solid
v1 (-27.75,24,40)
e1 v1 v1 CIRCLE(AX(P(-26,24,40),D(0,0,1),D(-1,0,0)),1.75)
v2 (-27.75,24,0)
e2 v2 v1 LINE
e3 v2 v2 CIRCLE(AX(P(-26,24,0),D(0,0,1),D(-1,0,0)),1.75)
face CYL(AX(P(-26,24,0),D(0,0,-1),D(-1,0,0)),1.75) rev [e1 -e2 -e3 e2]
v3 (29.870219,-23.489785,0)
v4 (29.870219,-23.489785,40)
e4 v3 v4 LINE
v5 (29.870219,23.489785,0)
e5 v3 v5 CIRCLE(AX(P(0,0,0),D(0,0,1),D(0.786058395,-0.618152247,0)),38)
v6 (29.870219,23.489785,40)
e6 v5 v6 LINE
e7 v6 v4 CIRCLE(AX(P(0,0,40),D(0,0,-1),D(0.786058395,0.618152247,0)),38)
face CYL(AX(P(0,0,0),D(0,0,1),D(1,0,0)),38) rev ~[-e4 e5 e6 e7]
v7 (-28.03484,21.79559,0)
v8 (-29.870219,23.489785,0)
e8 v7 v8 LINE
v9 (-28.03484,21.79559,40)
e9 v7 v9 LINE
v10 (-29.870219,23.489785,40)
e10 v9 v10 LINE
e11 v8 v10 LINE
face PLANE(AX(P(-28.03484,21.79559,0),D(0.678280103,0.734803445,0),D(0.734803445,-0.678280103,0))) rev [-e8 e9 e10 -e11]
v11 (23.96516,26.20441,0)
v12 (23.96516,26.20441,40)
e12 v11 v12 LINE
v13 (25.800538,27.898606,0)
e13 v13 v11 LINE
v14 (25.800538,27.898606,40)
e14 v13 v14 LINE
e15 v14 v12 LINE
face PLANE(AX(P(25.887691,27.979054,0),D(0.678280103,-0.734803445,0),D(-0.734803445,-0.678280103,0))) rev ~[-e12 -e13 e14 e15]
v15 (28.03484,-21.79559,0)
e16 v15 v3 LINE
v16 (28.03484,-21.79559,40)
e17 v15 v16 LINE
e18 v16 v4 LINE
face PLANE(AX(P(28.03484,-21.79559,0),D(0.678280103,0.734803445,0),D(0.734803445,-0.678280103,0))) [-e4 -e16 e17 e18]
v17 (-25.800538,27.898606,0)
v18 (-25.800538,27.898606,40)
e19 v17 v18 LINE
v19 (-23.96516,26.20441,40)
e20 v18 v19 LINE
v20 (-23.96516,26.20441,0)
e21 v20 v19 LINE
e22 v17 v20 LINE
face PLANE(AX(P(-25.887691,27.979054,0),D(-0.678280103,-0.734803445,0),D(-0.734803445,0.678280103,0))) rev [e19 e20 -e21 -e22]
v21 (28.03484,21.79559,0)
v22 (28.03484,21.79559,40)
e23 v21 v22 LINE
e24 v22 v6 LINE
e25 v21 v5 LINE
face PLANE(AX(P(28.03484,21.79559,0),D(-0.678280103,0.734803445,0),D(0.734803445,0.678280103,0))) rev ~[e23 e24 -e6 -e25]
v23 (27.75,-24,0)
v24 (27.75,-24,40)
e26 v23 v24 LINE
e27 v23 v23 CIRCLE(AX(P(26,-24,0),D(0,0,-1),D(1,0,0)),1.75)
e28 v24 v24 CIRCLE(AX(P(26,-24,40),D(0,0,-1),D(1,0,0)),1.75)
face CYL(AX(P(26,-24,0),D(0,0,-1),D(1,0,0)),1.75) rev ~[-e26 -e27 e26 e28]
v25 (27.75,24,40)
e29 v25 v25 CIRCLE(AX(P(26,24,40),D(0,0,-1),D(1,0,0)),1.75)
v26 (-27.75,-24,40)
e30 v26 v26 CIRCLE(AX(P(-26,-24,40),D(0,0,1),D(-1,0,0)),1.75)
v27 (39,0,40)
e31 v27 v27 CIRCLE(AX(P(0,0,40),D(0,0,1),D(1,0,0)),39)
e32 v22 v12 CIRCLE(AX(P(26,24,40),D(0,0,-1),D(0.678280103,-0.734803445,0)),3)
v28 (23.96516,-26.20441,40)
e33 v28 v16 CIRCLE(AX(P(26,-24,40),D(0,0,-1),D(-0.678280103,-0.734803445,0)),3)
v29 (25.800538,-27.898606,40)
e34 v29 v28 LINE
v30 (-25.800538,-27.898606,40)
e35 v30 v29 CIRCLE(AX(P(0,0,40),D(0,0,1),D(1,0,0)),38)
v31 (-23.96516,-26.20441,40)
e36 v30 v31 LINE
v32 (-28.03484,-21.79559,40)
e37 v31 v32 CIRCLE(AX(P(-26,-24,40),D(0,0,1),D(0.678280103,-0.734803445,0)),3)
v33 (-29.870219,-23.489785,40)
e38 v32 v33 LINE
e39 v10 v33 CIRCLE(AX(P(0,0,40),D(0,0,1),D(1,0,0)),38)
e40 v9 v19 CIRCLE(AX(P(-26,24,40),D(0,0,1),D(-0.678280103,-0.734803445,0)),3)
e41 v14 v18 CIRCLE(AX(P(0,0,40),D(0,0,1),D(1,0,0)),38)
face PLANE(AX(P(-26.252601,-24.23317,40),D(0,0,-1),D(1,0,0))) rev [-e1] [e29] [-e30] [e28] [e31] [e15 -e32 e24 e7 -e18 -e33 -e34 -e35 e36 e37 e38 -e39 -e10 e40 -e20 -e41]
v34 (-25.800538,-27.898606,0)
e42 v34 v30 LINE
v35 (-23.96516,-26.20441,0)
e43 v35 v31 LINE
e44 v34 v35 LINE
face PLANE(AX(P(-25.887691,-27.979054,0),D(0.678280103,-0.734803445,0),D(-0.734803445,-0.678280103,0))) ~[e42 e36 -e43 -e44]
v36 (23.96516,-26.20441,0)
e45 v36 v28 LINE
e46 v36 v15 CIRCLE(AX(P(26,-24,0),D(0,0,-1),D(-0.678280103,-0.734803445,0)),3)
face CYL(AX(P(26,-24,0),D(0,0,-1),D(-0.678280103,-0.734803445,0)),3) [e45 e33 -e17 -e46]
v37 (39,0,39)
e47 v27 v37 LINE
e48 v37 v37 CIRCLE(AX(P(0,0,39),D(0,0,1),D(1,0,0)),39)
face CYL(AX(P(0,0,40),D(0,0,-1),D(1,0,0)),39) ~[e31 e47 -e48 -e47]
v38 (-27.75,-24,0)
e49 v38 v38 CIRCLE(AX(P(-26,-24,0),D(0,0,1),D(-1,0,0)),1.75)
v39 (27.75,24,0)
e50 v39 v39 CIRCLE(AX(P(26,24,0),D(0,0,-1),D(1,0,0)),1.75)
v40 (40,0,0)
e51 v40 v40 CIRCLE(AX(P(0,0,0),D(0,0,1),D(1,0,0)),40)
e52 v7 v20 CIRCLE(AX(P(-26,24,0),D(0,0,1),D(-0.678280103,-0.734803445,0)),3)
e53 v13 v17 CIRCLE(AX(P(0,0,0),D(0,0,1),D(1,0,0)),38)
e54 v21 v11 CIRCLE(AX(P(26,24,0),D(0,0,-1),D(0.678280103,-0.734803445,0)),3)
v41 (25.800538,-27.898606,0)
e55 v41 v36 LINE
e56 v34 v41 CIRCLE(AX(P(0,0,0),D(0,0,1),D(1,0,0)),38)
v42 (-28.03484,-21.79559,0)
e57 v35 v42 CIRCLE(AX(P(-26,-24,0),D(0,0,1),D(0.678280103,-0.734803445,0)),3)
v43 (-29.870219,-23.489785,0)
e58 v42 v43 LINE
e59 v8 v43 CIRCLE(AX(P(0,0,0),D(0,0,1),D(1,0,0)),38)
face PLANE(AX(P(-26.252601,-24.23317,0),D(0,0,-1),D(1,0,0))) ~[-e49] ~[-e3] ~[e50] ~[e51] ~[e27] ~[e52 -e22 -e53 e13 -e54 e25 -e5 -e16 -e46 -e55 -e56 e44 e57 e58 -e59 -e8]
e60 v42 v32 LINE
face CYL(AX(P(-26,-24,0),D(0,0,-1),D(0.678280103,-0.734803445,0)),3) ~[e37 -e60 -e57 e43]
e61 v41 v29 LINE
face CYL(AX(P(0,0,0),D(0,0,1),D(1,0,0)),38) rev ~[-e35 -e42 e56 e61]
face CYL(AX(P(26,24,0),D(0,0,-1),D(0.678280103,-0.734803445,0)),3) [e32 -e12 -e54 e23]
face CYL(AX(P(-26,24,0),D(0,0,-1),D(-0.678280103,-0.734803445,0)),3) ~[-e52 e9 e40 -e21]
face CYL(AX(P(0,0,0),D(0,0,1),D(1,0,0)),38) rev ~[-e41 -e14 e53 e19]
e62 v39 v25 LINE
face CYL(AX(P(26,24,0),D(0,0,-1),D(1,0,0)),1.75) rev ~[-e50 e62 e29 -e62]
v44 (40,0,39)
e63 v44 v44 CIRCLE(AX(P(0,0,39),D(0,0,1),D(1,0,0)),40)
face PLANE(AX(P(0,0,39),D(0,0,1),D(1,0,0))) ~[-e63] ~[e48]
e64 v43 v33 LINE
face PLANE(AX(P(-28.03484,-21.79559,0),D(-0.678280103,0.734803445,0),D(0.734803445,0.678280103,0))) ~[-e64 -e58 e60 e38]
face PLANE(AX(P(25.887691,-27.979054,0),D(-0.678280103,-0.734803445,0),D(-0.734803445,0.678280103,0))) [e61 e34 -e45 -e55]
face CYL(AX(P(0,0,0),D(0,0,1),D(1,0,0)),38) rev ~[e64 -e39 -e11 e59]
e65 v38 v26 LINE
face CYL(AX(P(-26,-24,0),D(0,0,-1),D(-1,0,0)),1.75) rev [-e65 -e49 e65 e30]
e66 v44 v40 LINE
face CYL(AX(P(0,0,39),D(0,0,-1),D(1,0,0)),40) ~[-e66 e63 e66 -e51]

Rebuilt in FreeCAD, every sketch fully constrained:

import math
import FreeCAD as App
import Part
import Sketcher
Q = App.Units.Quantity

doc = App.newDocument("Part")
body = doc.addObject("PartDesign::Body", "Body")

sketch1 = doc.addObject("Sketcher::SketchObject", "Sketch")
body.addObject(sketch1)
sketch1.AttachmentSupport = (doc.XZ_Plane, [""])
sketch1.MapMode = "FlatFace"
sketch1.addGeometry([
    Part.LineSegment(App.Vector(38, 40, 0), App.Vector(38, 0, 0)),
    Part.LineSegment(App.Vector(38, 0, 0), App.Vector(40, 0, 0)),
    Part.LineSegment(App.Vector(40, 0, 0), App.Vector(40, 39, 0)),
    Part.LineSegment(App.Vector(40, 39, 0), App.Vector(39, 39, 0)),
    Part.LineSegment(App.Vector(39, 39, 0), App.Vector(39, 40, 0)),
    Part.LineSegment(App.Vector(39, 40, 0), App.Vector(38, 40, 0)),
], False)
sketch1.addConstraint([
    Sketcher.Constraint("Coincident", 0, 2, 1, 1),
    Sketcher.Constraint("Coincident", 1, 2, 2, 1),
    Sketcher.Constraint("Coincident", 2, 2, 3, 1),
    Sketcher.Constraint("Coincident", 3, 2, 4, 1),
    Sketcher.Constraint("Coincident", 4, 2, 5, 1),
    Sketcher.Constraint("Coincident", 5, 2, 0, 1),
    Sketcher.Constraint("Vertical", 0),
    Sketcher.Constraint("Horizontal", 1),
    Sketcher.Constraint("Vertical", 2),
    Sketcher.Constraint("Horizontal", 3),
    Sketcher.Constraint("Vertical", 4),
    Sketcher.Constraint("Horizontal", 5),
    Sketcher.Constraint("PointOnObject", 0, 2, -1),
    Sketcher.Constraint("Equal", 3, 5),
    Sketcher.Constraint("Equal", 5, 4),
    Sketcher.Constraint("DistanceX", 1, 1, 1, 2, Q("2 mm")),
    Sketcher.Constraint("DistanceY", 0, 2, 0, 1, Q("40 mm")),
    Sketcher.Constraint("DistanceX", -1, 1, 0, 2, Q("38 mm")),
])
revolution = doc.addObject("PartDesign::Revolution", "Revolution")
body.addObject(revolution)
revolution.Profile = sketch1
revolution.ReferenceAxis = (sketch1, ["V_Axis"])
revolution.Angle = 360

sketch2 = doc.addObject("Sketcher::SketchObject", "Sketch001")
body.addObject(sketch2)
sketch2.AttachmentSupport = (doc.XY_Plane, [""])
sketch2.MapMode = "FlatFace"
sketch2.addGeometry([
    Part.ArcOfCircle(Part.Circle(App.Vector(26, -24, 0), App.Vector(0, 0, 1), 3), math.radians(47), math.radians(227)),
    Part.LineSegment(App.Vector(28, -21.8, 0), App.Vector(30, -23.6, 0)),
    Part.LineSegment(App.Vector(30, -23.6, 0), App.Vector(25.9, -28, 0)),
    Part.LineSegment(App.Vector(25.9, -28, 0), App.Vector(24, -26.2, 0)),
    Part.Circle(App.Vector(26, -24, 0), App.Vector(0, 0, 1), 1.8),
    Part.ArcOfCircle(Part.Circle(App.Vector(26, 24, 0), App.Vector(0, 0, 1), 3), math.radians(133), math.radians(313)),
    Part.LineSegment(App.Vector(24, 26.2, 0), App.Vector(25.9, 28, 0)),
    Part.LineSegment(App.Vector(25.9, 28, 0), App.Vector(30, 23.6, 0)),
    Part.LineSegment(App.Vector(30, 23.6, 0), App.Vector(28, 21.8, 0)),
    Part.Circle(App.Vector(26, 24, 0), App.Vector(0, 0, 1), 1.8),
], False)
sketch2.addConstraint([
    Sketcher.Constraint("Tangent", 0, 1, 1, 1),
    Sketcher.Constraint("Coincident", 1, 2, 2, 1),
    Sketcher.Constraint("Coincident", 2, 2, 3, 1),
    Sketcher.Constraint("Tangent", 3, 2, 0, 2),
    Sketcher.Constraint("Tangent", 5, 1, 6, 1),
    Sketcher.Constraint("Coincident", 6, 2, 7, 1),
    Sketcher.Constraint("Coincident", 7, 2, 8, 1),
    Sketcher.Constraint("Tangent", 8, 2, 5, 2),
    Sketcher.Constraint("Coincident", 4, 3, 0, 3),
    Sketcher.Constraint("Coincident", 9, 3, 5, 3),
    Sketcher.Constraint("Equal", 0, 5),
    Sketcher.Constraint("Equal", 4, 9),
    Sketcher.Constraint("Symmetric", 0, 3, 5, 3, -1),
    Sketcher.Constraint("Symmetric", 2, 2, 6, 2, -1),
    Sketcher.Constraint("Symmetric", 1, 2, 7, 2, -1),
    Sketcher.Constraint("Perpendicular", 1, 2),
    Sketcher.Constraint("Perpendicular", 2, 3),
    Sketcher.Constraint("Radius", 0, Q("3 mm")),
    Sketcher.Constraint("Diameter", 4, Q("3.5 mm")),
    Sketcher.Constraint("DistanceX", -1, 1, 0, 3, Q("26 mm")),
    Sketcher.Constraint("DistanceY", 0, 3, -1, 1, Q("24 mm")),
    Sketcher.Constraint("DistanceX", -1, 1, 0, 1, Q("28.03484 mm")),
    Sketcher.Constraint("DistanceX", -1, 1, 1, 2, Q("29.957371 mm")),
])
pad1 = doc.addObject("PartDesign::Pad", "Pad")
body.addObject(pad1)
pad1.Profile = sketch2
pad1.Length = 40
doc.recompute()

mirrored = doc.addObject("PartDesign::Mirrored", "Mirrored")
body.addObject(mirrored)
mirrored.Originals = [pad1]
mirrored.MirrorPlane = (doc.YZ_Plane, [""])
body.Tip = mirrored

doc.recompute()
